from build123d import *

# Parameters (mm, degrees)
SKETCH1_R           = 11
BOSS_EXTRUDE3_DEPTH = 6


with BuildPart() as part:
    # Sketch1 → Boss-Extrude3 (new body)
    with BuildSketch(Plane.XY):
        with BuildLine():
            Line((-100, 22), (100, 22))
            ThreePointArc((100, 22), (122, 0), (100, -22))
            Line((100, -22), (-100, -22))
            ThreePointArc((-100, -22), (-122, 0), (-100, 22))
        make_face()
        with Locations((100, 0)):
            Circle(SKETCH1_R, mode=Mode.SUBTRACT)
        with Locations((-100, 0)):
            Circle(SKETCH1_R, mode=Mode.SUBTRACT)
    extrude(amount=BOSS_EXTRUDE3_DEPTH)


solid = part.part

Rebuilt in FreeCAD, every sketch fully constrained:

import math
import FreeCAD as App
import Part
import Sketcher
from FreeCAD import Vector

doc = App.newDocument("Part")
params = doc.addObject("Spreadsheet::Sheet", "Params")
for row, (alias, value) in enumerate([
    ("sketch1_diameter", "22 mm"),
    ("sketch1_radius", "22 mm"),
    ("sketch1_width", "200 mm"),
    ("pad1_length", "6 mm"),
], start=1):
    params.set(f"A{row}", alias)
    params.set(f"B{row}", "=" + value)
    params.setAlias(f"B{row}", alias)

body = doc.addObject("PartDesign::Body", "Body")

sketch1 = doc.addObject("Sketcher::SketchObject", "Sketch")
body.addObject(sketch1)
sketch1.AttachmentSupport = (doc.XY_Plane, [""])
sketch1.MapMode = "FlatFace"
sketch1.addGeometry(Part.LineSegment(Vector(100, 22, 0), Vector(-100, 22, 0)), False)
sketch1.addGeometry(Part.ArcOfCircle(Part.Circle(Vector(-100, 0, 0), Vector(0, 0, 1), 22), math.radians(90), math.radians(270)), False)
sketch1.addGeometry(Part.LineSegment(Vector(-100, -22, 0), Vector(100, -22, 0)), False)
sketch1.addGeometry(Part.ArcOfCircle(Part.Circle(Vector(100, 0, 0), Vector(0, 0, 1), 22), math.radians(-90), math.radians(90)), False)
sketch1.addGeometry(Part.Circle(Vector(100, 0, 0), Vector(0, 0, 1), 11), False)
sketch1.addGeometry(Part.Circle(Vector(-100, 0, 0), Vector(0, 0, 1), 11), False)
sketch1.addConstraint(Sketcher.Constraint("Tangent", 0, 2, 1, 1))
sketch1.addConstraint(Sketcher.Constraint("Tangent", 1, 2, 2, 1))
sketch1.addConstraint(Sketcher.Constraint("Tangent", 2, 2, 3, 1))
sketch1.addConstraint(Sketcher.Constraint("Tangent", 3, 2, 0, 1))
sketch1.addConstraint(Sketcher.Constraint("Horizontal", 0))
sketch1.addConstraint(Sketcher.Constraint("Horizontal", 2))
sketch1.addConstraint(Sketcher.Constraint("Coincident", 4, 3, 3, 3))
sketch1.addConstraint(Sketcher.Constraint("Coincident", 5, 3, 1, 3))
sketch1.addConstraint(Sketcher.Constraint("Equal", 4, 5))
sketch1.addConstraint(Sketcher.Constraint("Symmetric", 1, 3, 3, 3, -1, 1))
sketch1.addConstraint(Sketcher.Constraint("Diameter", 4, 22.0))
sketch1.addConstraint(Sketcher.Constraint("Radius", 1, 22.0))
sketch1.addConstraint(Sketcher.Constraint("DistanceX", 0, 2, 0, 1, 200.0))
sketch1.setExpression("Constraints[10]", "Params.sketch1_diameter")
sketch1.setExpression("Constraints[11]", "Params.sketch1_radius")
sketch1.setExpression("Constraints[12]", "Params.sketch1_width")
pad1 = doc.addObject("PartDesign::Pad", "Pad")
body.addObject(pad1)
pad1.Profile = sketch1
pad1.setExpression("Length", "Params.pad1_length")

doc.recompute()
